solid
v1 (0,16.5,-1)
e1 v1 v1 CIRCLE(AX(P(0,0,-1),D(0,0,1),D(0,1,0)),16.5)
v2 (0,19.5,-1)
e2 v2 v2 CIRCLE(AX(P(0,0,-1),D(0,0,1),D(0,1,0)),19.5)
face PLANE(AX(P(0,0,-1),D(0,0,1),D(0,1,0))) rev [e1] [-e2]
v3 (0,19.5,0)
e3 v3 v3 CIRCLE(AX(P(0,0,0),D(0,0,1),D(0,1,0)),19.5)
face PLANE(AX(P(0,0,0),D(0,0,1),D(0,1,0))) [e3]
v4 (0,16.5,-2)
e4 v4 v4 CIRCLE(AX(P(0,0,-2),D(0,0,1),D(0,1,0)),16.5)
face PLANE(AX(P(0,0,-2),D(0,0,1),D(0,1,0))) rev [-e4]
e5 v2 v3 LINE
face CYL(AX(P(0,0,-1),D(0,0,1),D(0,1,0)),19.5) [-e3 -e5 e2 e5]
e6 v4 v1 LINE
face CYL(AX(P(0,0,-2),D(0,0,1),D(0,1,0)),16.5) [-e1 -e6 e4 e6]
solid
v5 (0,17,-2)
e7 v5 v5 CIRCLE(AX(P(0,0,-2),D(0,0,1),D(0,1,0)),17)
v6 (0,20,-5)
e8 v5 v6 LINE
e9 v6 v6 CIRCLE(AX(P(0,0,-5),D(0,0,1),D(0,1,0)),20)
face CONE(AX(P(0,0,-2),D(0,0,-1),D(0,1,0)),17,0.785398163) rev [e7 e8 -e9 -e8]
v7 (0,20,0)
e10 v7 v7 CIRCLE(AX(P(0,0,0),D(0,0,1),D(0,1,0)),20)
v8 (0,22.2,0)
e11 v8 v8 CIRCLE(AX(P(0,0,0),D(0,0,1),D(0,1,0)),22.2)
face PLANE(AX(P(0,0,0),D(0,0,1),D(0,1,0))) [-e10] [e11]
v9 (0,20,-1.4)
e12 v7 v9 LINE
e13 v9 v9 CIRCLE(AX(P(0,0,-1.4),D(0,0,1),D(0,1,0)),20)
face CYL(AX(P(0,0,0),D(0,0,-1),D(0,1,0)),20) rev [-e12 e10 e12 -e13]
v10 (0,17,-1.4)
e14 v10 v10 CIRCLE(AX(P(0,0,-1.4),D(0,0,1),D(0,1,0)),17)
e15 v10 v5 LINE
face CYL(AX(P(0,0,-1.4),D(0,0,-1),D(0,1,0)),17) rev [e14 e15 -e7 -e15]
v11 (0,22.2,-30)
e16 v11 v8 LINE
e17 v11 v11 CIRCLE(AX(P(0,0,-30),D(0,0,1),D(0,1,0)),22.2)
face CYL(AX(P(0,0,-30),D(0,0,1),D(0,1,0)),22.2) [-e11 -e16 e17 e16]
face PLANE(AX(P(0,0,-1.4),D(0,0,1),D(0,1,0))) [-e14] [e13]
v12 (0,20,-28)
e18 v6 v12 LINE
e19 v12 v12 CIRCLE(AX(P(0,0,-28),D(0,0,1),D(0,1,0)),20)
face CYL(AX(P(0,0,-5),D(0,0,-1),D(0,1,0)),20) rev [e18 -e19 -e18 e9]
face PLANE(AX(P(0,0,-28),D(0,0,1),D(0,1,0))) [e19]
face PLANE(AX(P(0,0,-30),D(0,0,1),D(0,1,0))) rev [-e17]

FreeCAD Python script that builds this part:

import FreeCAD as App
import Part
import Sketcher
from FreeCAD import Vector
Q = App.Units.Quantity


def add_polygon(sketch, points):
    """Adds a closed chain of lines whose ends are joined by coincident constraints."""
    first, n = sketch.GeometryCount, len(points)
    for a, b in zip(points, points[1:] + points[:1]):
        sketch.addGeometry(Part.LineSegment(App.Vector(*a, 0), App.Vector(*b, 0)), False)
    for i in range(n):
        sketch.addConstraint(Sketcher.Constraint("Coincident", first + i, 2, first + (i + 1) % n, 1))

doc = App.newDocument("Part")
params = doc.addObject("Spreadsheet::Sheet", "Params")
for row, (alias, value) in enumerate([
    ("sketch1_width", "3 mm"),
    ("sketch1_width2", "20 mm"),
    ("sketch1_height", "30 mm"),
    ("sketch1_height2", "23 mm"),
    ("sketch1_height3", "2 mm"),
    ("revolution_angle", "360 deg"),
], start=1):
    params.set(f"A{row}", alias)
    params.set(f"B{row}", "=" + value)
    params.setAlias(f"B{row}", alias)

body = doc.addObject("PartDesign::Body", "Body")
body.AllowCompound = True

# Sketch on YZ plane
sketch1 = body.newObject("Sketcher::SketchObject", "Sketch")
sketch1.AttachmentSupport = (doc.getObject("YZ_Plane"), [""])
sketch1.MapMode = "FlatFace"
add_polygon(sketch1, [(22.2, -30), (22.2, 0), (20, 0), (20, -1.4), (17, -1.4), (17, -2), (20, -5), (20, -28), (0, -28), (0, -30)])  # lines 0-9
add_polygon(sketch1, [(19.5, -1), (19.5, 0), (0, 0), (0, -2), (16.5, -2), (16.5, -1)])  # lines 10-15
sketch1.addConstraint([
    Sketcher.Constraint("Vertical", 0),
    Sketcher.Constraint("Horizontal", 1),
    Sketcher.Constraint("Vertical", 2),
    Sketcher.Constraint("Horizontal", 3),
    Sketcher.Constraint("Vertical", 4),
    Sketcher.Constraint("Vertical", 6),
    Sketcher.Constraint("Horizontal", 7),
    Sketcher.Constraint("Vertical", 8),
    Sketcher.Constraint("Horizontal", 9),
    Sketcher.Constraint("Vertical", 10),
    Sketcher.Constraint("Horizontal", 11),
    Sketcher.Constraint("Vertical", 12),
    Sketcher.Constraint("Horizontal", 13),
    Sketcher.Constraint("Vertical", 14),
    Sketcher.Constraint("Horizontal", 15),
    Sketcher.Constraint("Coincident", 11, 2, -1, 1),
    Sketcher.Constraint("PointOnObject", 0, 2, -1),
    Sketcher.Constraint("PointOnObject", 7, 2, -2),
    Sketcher.Constraint("Horizontal", 4, 2, 12, 2),
    Sketcher.Constraint("Vertical", 2, 2, 5, 2),
    Sketcher.Constraint("Equal", 3, 15),
    Sketcher.Constraint("Equal", 8, 12),
    Sketcher.Constraint("Equal", 10, 14),
    Sketcher.Constraint("DistanceX", 3, 2, 3, 1, Q("3 mm")),
    Sketcher.Constraint("DistanceX", 7, 2, 7, 1, Q("20 mm")),
    Sketcher.Constraint("DistanceY", 0, 1, 0, 2, Q("30 mm")),
    Sketcher.Constraint("DistanceY", 6, 2, 6, 1, Q("23 mm")),
    Sketcher.Constraint("DistanceY", 8, 2, 8, 1, Q("2 mm")),
    Sketcher.Constraint("DistanceX", 1, 2, 1, 1, Q("2.2 mm")),
    Sketcher.Constraint("DistanceX", 11, 2, 11, 1, Q("19.5 mm")),
    Sketcher.Constraint("DistanceY", 2, 2, 2, 1, Q("1.4 mm")),
])
sketch1.setExpression("Constraints[39]", "Params.sketch1_width")
sketch1.setExpression("Constraints[40]", "Params.sketch1_width2")
sketch1.setExpression("Constraints[41]", "Params.sketch1_height")
sketch1.setExpression("Constraints[42]", "Params.sketch1_height2")
sketch1.setExpression("Constraints[43]", "Params.sketch1_height3")
revolution = body.newObject("PartDesign::Revolution", "Revolution")
revolution.Profile = sketch1
revolution.ReferenceAxis = (sketch1, ["V_Axis"])
revolution.setExpression("Angle", "Params.revolution_angle")

doc.recompute()
